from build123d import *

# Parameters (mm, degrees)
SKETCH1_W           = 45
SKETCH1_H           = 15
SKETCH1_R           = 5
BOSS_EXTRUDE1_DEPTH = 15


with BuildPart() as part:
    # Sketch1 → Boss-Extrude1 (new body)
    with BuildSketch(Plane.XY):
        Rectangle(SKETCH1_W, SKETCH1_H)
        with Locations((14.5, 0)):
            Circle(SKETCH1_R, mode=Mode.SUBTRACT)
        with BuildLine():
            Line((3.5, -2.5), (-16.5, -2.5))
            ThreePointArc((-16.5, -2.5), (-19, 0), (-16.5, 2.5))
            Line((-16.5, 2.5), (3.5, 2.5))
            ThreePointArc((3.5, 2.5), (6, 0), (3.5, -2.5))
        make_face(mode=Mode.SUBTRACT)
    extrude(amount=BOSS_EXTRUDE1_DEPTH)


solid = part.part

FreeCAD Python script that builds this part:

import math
import FreeCAD as App
import Part
import Sketcher

V = App.Vector

doc = App.newDocument("Part")
params = doc.addObject("Spreadsheet::Sheet", "Params")
for row, (alias, value) in enumerate([
    ("sketch1_diameter", "10 mm"),
    ("sketch1_radius", "2.5 mm"),
    ("sketch1_width", "45 mm"),
    ("sketch1_width2", "20 mm"),
    ("sketch1_height", "15 mm"),
    ("pad1_length", "15 mm"),
], start=1):
    params.set(f"A{row}", alias)
    params.set(f"B{row}", "=" + value)
    params.setAlias(f"B{row}", alias)

body = doc.addObject("PartDesign::Body", "Body")

# Sketch on XY plane
sketch1 = body.newObject("Sketcher::SketchObject", "Sketch")
sketch1.AttachmentSupport = (doc.getObject("XY_Plane"), [""])
sketch1.MapMode = "FlatFace"
sketch1.addGeometry([
    Part.LineSegment(V(-22.5, 7.5, 0), V(-22.5, -7.5, 0)),  # 0
    Part.LineSegment(V(-22.5, -7.5, 0), V(22.5, -7.5, 0)),  # 1
    Part.LineSegment(V(22.5, -7.5, 0), V(22.5, 7.5, 0)),  # 2
    Part.LineSegment(V(22.5, 7.5, 0), V(-22.5, 7.5, 0)),  # 3
    Part.ArcOfCircle(Part.Circle(V(3.5, 0, 0), V(0, 0, 1), 2.5), math.radians(-90), math.radians(90)),  # 4
    Part.LineSegment(V(3.5, -2.5, 0), V(-16.5, -2.5, 0)),  # 5
    Part.ArcOfCircle(Part.Circle(V(-16.5, 0, 0), V(0, 0, 1), 2.5), math.radians(90), math.radians(270)),  # 6
    Part.LineSegment(V(-16.5, 2.5, 0), V(3.5, 2.5, 0)),  # 7
    Part.Circle(V(14.5, 0, 0), V(0, 0, 1), 5),  # 8
], False)
sketch1.addConstraint([
    Sketcher.Constraint("Coincident", 0, 2, 1, 1),
    Sketcher.Constraint("Coincident", 1, 2, 2, 1),
    Sketcher.Constraint("Coincident", 2, 2, 3, 1),
    Sketcher.Constraint("Coincident", 3, 2, 0, 1),
    Sketcher.Constraint("Tangent", 4, 1, 5, 1),
    Sketcher.Constraint("Tangent", 5, 2, 6, 2),
    Sketcher.Constraint("Tangent", 6, 1, 7, 1),
    Sketcher.Constraint("Tangent", 7, 2, 4, 2),
    Sketcher.Constraint("Vertical", 0),
    Sketcher.Constraint("Horizontal", 1),
    Sketcher.Constraint("Vertical", 2),
    Sketcher.Constraint("Horizontal", 3),
    Sketcher.Constraint("Horizontal", 5),
    Sketcher.Constraint("Horizontal", 7),
    Sketcher.Constraint("Symmetric", 0, 2, 2, 2, -1, 1),
    Sketcher.Constraint("PointOnObject", 4, 3, -1),
    Sketcher.Constraint("PointOnObject", 8, 3, -1),
    Sketcher.Constraint("Diameter", 8, 10.0),
    Sketcher.Constraint("Radius", 4, 2.5),
    Sketcher.Constraint("DistanceX", 1, 1, 1, 2, 45.0),
    Sketcher.Constraint("DistanceX", 5, 2, 5, 1, 20.0),
    Sketcher.Constraint("DistanceY", 0, 2, 0, 1, 15.0),
    Sketcher.Constraint("DistanceX", 4, 3, 8, 3, 11.0),
    Sketcher.Constraint("DistanceX", 0, 2, 6, 3, 6.0),
])
sketch1.setExpression("Constraints[17]", "Params.sketch1_diameter")
sketch1.setExpression("Constraints[18]", "Params.sketch1_radius")
sketch1.setExpression("Constraints[19]", "Params.sketch1_width")
sketch1.setExpression("Constraints[20]", "Params.sketch1_width2")
sketch1.setExpression("Constraints[21]", "Params.sketch1_height")
pad1 = body.newObject("PartDesign::Pad", "Pad")
pad1.Profile = sketch1
pad1.setExpression("Length", "Params.pad1_length")

doc.recompute()
